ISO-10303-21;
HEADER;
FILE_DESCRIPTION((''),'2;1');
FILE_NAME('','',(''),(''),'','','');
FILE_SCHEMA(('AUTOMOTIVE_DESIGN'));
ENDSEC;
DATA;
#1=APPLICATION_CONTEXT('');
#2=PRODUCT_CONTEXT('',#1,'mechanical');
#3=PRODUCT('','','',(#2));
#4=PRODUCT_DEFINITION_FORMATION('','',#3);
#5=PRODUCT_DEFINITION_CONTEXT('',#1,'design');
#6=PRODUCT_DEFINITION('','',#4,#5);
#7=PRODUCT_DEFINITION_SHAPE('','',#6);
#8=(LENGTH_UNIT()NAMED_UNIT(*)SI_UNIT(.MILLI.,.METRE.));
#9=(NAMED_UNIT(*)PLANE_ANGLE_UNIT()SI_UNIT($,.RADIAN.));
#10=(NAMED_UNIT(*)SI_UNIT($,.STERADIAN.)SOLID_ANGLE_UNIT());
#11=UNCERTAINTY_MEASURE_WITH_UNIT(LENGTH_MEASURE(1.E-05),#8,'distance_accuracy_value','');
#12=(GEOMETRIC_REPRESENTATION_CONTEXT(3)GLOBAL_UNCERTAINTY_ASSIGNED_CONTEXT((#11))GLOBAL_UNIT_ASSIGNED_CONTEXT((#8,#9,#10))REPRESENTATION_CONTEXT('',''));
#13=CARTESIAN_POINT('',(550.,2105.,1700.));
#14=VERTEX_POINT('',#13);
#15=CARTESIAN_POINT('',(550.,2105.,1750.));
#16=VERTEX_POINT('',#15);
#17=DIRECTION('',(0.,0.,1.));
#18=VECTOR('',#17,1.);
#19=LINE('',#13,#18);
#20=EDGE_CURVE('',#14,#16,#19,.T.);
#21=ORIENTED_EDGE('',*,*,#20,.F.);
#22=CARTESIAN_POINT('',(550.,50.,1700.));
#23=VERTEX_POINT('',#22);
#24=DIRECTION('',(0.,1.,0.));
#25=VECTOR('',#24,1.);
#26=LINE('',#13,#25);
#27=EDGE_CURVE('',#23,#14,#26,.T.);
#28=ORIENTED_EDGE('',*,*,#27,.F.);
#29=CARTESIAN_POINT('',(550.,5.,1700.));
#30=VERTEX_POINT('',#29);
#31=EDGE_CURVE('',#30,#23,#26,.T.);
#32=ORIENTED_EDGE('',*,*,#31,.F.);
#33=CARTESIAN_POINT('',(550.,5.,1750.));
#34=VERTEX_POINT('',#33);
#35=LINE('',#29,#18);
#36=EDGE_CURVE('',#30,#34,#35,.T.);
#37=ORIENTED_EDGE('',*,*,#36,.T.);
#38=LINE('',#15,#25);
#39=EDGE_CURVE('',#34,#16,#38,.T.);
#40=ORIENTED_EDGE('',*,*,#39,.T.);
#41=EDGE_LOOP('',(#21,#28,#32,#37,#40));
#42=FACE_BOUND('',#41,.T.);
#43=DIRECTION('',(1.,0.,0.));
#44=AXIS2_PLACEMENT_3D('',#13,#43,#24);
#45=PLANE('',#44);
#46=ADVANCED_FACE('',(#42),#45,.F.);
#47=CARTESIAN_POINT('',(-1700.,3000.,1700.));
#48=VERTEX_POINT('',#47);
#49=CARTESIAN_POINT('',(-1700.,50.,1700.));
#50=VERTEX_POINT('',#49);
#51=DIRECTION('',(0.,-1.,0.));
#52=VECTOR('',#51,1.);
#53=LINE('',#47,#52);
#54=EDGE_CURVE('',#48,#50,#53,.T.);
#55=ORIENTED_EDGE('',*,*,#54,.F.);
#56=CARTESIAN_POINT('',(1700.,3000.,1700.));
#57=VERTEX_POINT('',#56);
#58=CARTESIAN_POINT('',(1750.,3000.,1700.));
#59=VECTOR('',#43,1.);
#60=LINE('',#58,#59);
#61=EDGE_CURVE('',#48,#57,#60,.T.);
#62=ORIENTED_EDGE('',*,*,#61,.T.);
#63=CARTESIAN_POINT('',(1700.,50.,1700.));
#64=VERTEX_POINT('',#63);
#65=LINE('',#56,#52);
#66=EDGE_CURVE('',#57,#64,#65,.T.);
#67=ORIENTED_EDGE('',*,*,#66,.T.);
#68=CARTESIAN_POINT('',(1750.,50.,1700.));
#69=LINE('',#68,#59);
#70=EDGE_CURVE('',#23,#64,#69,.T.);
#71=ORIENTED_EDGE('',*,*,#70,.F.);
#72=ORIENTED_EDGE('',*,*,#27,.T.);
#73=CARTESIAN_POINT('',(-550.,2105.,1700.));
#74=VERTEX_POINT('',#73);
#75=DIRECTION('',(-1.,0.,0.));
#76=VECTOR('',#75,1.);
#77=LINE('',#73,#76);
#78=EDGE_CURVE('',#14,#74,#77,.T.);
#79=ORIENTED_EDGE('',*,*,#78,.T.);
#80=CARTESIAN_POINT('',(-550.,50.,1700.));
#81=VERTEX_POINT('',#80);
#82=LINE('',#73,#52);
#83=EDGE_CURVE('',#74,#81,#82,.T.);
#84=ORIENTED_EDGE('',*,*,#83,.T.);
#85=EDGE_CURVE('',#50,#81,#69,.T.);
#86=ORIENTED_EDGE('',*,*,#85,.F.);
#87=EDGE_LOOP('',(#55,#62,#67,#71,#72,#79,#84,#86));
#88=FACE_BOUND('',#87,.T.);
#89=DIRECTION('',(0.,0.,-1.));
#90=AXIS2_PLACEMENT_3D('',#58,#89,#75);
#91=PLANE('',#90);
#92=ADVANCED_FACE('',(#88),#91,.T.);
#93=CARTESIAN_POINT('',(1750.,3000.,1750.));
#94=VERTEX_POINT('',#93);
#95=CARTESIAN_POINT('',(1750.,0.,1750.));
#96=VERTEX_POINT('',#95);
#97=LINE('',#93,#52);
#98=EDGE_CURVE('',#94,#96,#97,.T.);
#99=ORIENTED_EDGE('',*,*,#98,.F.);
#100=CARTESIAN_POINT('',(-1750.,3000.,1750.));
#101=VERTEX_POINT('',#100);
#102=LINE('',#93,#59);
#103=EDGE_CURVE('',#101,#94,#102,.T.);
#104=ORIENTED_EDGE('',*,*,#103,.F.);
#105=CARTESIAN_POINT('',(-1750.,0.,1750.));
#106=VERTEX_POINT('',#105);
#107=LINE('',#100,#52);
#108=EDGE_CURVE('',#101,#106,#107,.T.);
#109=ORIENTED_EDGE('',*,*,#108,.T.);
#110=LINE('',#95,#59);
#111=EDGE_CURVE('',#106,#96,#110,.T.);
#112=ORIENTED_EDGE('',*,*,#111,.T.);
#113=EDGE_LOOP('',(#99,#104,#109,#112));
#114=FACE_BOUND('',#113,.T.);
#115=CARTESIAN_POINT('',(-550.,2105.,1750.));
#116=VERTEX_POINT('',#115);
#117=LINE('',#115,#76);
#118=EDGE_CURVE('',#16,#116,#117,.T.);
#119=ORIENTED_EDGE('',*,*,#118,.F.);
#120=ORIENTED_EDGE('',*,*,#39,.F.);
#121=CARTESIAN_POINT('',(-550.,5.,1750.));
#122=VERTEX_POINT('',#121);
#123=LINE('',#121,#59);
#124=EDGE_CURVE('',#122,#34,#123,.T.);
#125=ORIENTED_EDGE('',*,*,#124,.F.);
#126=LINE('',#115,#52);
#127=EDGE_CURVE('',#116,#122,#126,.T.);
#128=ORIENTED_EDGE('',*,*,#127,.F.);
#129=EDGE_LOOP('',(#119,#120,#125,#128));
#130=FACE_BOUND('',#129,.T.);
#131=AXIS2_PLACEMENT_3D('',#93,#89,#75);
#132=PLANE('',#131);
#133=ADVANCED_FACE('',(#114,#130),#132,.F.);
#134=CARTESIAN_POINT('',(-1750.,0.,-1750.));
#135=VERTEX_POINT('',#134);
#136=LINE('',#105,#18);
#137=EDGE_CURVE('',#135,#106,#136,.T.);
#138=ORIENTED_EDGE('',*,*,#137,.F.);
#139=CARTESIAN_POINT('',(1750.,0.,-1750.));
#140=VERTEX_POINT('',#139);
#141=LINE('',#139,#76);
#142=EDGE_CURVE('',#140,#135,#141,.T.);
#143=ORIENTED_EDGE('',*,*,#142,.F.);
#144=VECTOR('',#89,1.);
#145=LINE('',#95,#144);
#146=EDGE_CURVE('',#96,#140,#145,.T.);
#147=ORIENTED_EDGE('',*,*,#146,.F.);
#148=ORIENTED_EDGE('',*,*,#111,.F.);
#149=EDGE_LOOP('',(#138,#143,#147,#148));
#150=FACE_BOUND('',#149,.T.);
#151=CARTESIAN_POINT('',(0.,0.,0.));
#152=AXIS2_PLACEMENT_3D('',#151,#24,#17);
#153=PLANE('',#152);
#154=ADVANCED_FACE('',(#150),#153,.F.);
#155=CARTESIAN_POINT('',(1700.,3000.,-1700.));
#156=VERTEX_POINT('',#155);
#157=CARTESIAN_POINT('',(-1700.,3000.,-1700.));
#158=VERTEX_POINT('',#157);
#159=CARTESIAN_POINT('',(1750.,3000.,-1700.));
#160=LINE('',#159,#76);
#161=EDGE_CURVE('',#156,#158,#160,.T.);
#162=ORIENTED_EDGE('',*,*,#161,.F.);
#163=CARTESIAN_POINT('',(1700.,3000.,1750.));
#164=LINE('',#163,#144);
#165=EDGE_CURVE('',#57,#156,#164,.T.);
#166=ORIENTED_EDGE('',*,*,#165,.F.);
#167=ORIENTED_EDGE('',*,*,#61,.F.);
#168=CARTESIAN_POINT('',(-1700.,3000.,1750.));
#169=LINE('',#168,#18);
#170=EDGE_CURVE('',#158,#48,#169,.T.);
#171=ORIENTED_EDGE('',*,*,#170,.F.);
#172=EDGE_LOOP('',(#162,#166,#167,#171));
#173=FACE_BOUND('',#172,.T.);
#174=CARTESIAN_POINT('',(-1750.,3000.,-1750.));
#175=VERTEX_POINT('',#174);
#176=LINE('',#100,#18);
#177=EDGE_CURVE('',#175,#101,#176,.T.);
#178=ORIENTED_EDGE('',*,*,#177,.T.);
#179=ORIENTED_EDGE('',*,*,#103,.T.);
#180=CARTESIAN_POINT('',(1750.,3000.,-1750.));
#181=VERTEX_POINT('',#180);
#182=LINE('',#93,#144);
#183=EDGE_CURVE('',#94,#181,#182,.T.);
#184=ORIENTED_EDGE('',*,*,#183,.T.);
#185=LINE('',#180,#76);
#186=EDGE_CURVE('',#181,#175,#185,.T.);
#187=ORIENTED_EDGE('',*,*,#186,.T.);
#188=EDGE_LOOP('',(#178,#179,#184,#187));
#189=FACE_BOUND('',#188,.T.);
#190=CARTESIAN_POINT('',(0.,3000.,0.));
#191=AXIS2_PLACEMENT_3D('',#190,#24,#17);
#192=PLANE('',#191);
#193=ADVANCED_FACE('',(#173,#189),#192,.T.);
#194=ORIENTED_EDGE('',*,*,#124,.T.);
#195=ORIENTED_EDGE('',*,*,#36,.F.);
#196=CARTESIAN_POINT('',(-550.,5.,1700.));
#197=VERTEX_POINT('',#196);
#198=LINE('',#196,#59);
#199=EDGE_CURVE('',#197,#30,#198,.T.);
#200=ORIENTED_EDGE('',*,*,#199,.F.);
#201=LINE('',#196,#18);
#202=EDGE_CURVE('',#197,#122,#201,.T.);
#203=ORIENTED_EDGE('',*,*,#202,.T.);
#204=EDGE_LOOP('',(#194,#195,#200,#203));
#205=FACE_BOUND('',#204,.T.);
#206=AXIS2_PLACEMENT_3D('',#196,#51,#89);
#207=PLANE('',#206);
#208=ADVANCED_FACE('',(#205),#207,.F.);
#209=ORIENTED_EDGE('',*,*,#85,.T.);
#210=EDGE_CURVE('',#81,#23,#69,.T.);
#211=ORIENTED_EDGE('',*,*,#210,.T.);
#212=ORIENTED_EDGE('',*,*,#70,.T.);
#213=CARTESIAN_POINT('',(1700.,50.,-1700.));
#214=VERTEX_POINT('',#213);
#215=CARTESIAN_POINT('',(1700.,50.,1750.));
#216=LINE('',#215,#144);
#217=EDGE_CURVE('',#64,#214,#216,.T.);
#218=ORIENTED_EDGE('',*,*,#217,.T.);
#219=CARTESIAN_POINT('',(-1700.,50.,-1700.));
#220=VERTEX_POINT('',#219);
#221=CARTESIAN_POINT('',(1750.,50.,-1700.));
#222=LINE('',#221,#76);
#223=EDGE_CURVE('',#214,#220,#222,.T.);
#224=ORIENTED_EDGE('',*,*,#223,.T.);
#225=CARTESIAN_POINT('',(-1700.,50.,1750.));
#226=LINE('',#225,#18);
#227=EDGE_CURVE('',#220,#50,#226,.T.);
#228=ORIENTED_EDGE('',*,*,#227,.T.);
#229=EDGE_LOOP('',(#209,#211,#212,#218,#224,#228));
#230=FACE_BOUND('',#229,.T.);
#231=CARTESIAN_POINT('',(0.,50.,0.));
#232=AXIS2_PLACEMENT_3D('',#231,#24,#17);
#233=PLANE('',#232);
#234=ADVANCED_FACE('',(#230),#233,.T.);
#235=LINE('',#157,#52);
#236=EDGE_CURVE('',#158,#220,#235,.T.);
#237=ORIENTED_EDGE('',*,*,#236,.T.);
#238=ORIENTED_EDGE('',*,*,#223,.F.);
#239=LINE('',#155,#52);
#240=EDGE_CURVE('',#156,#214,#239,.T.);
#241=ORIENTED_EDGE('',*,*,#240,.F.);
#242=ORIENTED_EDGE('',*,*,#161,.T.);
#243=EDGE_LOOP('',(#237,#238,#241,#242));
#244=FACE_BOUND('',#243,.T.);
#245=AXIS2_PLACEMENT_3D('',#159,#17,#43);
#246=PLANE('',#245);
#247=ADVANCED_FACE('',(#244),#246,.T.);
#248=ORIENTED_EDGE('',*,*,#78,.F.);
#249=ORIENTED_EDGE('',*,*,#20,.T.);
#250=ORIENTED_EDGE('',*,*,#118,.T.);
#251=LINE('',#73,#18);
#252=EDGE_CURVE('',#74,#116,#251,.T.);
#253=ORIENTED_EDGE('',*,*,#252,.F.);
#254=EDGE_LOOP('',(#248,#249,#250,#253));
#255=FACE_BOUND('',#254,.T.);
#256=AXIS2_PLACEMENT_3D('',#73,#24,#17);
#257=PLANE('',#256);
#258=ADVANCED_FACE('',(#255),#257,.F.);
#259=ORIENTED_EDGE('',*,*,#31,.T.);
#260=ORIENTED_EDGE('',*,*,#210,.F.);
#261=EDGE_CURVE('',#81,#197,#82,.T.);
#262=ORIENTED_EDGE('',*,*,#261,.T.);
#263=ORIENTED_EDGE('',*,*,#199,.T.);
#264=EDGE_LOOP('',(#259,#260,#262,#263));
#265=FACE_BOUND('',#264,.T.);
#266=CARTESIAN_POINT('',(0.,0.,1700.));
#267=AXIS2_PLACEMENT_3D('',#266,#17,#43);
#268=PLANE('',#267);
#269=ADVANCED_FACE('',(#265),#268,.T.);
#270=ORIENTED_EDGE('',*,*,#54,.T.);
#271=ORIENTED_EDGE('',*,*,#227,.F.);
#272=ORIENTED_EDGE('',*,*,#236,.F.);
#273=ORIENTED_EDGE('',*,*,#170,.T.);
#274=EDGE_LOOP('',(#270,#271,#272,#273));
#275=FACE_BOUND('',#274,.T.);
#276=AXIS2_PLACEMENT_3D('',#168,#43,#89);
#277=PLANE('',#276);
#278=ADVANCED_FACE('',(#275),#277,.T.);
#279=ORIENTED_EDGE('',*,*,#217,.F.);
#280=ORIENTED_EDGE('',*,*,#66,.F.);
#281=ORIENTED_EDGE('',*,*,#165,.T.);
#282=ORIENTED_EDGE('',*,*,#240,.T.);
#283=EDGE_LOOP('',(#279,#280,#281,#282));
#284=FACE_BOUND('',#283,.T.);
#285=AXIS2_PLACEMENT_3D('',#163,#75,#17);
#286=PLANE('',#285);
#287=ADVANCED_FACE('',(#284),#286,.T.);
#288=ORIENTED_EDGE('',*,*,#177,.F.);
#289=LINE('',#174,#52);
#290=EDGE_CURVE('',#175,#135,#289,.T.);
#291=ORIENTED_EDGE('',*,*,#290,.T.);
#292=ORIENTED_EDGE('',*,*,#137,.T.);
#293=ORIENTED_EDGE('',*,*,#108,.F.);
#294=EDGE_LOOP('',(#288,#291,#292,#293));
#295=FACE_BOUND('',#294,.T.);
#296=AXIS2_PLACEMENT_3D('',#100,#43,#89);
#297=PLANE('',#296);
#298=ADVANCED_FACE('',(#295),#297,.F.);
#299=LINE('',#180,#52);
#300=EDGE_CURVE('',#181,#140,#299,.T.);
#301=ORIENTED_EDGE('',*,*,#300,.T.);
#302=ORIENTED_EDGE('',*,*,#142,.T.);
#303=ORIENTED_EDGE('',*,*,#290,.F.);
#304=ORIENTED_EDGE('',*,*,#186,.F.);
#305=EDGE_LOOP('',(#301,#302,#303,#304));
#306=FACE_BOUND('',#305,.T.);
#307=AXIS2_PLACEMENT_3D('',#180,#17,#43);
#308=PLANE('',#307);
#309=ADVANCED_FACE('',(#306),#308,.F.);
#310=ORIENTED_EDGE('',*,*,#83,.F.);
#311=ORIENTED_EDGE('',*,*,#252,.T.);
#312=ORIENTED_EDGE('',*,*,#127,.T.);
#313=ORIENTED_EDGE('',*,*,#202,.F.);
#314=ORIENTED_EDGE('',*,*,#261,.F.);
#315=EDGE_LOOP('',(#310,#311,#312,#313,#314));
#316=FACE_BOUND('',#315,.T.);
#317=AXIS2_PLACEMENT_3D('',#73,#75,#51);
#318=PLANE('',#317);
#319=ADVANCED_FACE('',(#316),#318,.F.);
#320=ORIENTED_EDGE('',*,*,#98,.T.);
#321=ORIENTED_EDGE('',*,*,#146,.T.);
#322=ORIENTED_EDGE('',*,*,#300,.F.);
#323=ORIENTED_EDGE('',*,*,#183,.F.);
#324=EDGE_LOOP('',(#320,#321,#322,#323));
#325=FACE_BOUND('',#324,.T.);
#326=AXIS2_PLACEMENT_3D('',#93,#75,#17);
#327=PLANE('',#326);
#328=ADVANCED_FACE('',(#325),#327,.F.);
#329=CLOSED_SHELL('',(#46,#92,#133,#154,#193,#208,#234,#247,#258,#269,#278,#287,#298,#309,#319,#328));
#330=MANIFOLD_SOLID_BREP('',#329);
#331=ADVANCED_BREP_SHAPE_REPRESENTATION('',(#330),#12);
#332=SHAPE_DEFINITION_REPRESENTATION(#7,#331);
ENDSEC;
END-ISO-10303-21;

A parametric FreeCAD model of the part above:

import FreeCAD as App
import Part
import Sketcher
Q = App.Units.Quantity


def faces_at(feature, points):
    """Names of the faces that lie closest to the given points."""
    faces = feature.Shape.Faces
    near = lambda p: min(range(len(faces)), key=lambda i: faces[i].distToShape(Part.Vertex(*p))[0])
    return sorted({f"Face{near(p) + 1}" for p in points})

doc = App.newDocument("Part")
body = doc.addObject("PartDesign::Body", "Body")

# Sketch on XZ plane
sketch1 = body.newObject("Sketcher::SketchObject", "Sketch")
sketch1.AttachmentSupport = (doc.getObject("XZ_Plane"), [""])
sketch1.MapMode = "FlatFace"
sketch1.addGeometry([
    Part.LineSegment(App.Vector(-1750, -1750, 0), App.Vector(-1750, 1750, 0)),
    Part.LineSegment(App.Vector(-1750, 1750, 0), App.Vector(1750, 1750, 0)),
    Part.LineSegment(App.Vector(1750, 1750, 0), App.Vector(1750, -1750, 0)),
    Part.LineSegment(App.Vector(1750, -1750, 0), App.Vector(-1750, -1750, 0)),
], False)
sketch1.addConstraint([
    Sketcher.Constraint("Coincident", 0, 2, 1, 1),
    Sketcher.Constraint("Coincident", 1, 2, 2, 1),
    Sketcher.Constraint("Coincident", 2, 2, 3, 1),
    Sketcher.Constraint("Coincident", 3, 2, 0, 1),
    Sketcher.Constraint("Vertical", 0),
    Sketcher.Constraint("Horizontal", 1),
    Sketcher.Constraint("Vertical", 2),
    Sketcher.Constraint("Horizontal", 3),
    Sketcher.Constraint("Symmetric", 0, 2, 2, 2, -1, 1),
    Sketcher.Constraint("Equal", 3, 0),
    Sketcher.Constraint("DistanceX", 1, 1, 1, 2, Q("3500 mm")),
])
pad1 = body.newObject("PartDesign::Pad", "Pad")
pad1.Profile = sketch1
pad1.Length = 3000
pad1.Reversed = True
doc.recompute()

thickness = body.newObject("PartDesign::Thickness", "Thickness")
thickness.Base = (pad1, faces_at(pad1, [(0, 3000, 0)]))
thickness.Value = 50
thickness.Reversed = True
thickness.Join = "Intersection"

# Sketch on XY plane
sketch2 = body.newObject("Sketcher::SketchObject", "Sketch001")
sketch2.AttachmentSupport = (doc.getObject("XY_Plane"), [""])
sketch2.MapMode = "FlatFace"
sketch2.AttachmentOffset = App.Placement(App.Vector(0, 0, 1750), App.Rotation())
sketch2.addGeometry([
    Part.LineSegment(App.Vector(-550, 2105, 0), App.Vector(-550, 5, 0)),
    Part.LineSegment(App.Vector(-550, 5, 0), App.Vector(550, 5, 0)),
    Part.LineSegment(App.Vector(550, 5, 0), App.Vector(550, 2105, 0)),
    Part.LineSegment(App.Vector(550, 2105, 0), App.Vector(-550, 2105, 0)),
], False)
sketch2.addConstraint([
    Sketcher.Constraint("Coincident", 0, 2, 1, 1),
    Sketcher.Constraint("Coincident", 1, 2, 2, 1),
    Sketcher.Constraint("Coincident", 2, 2, 3, 1),
    Sketcher.Constraint("Coincident", 3, 2, 0, 1),
    Sketcher.Constraint("Vertical", 0),
    Sketcher.Constraint("Horizontal", 1),
    Sketcher.Constraint("Vertical", 2),
    Sketcher.Constraint("Horizontal", 3),
    Sketcher.Constraint("DistanceX", 1, 1, 1, 2, Q("1100 mm")),
    Sketcher.Constraint("DistanceY", 0, 2, 0, 1, Q("2100 mm")),
    Sketcher.Constraint("DistanceX", 0, 2, -1, 1, Q("550 mm")),
    Sketcher.Constraint("DistanceY", -1, 1, 0, 2, Q("5 mm")),
])
pocket1 = body.newObject("PartDesign::Pocket", "Pocket")
pocket1.Profile = sketch2
pocket1.Length = 50

doc.recompute()
